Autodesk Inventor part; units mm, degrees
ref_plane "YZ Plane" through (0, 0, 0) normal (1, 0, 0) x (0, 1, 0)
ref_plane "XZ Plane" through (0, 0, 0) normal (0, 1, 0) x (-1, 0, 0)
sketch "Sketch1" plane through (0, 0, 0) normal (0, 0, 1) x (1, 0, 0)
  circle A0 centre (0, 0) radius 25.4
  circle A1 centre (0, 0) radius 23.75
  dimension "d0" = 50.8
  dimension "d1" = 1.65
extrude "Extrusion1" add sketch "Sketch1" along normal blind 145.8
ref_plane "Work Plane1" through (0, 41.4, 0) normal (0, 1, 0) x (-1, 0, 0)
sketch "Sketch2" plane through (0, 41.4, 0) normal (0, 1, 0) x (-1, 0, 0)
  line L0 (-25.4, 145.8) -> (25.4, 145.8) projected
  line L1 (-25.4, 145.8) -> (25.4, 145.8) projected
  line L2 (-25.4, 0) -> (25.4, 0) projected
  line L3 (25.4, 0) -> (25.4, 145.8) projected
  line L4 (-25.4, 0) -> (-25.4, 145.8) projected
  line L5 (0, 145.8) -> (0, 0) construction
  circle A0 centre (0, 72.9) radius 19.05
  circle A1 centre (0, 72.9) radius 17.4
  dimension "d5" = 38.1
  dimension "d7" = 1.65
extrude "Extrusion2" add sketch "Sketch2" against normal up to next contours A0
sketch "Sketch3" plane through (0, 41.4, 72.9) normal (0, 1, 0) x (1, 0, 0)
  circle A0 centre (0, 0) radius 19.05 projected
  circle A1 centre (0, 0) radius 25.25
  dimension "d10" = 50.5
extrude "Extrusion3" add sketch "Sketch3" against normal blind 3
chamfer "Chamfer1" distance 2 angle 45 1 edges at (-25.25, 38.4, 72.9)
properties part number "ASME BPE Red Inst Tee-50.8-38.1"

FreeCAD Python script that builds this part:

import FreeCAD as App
import Part
import Sketcher


def edges_at(feature, points):
    """Names of the edges that pass closest to the given points."""
    edges = feature.Shape.Edges
    near = lambda p: min(range(len(edges)), key=lambda i: edges[i].distToShape(Part.Vertex(*p))[0])
    return sorted({f"Edge{near(p) + 1}" for p in points})

doc = App.newDocument("Part")
body = doc.addObject("PartDesign::Body", "Body")

# Sketch on XY plane
sketch1 = doc.addObject("Sketcher::SketchObject", "Sketch")
body.addObject(sketch1)
sketch1.AttachmentSupport = (doc.XY_Plane, [""])
sketch1.MapMode = "FlatFace"
sketch1.addGeometry(Part.Circle(App.Vector(0, 0, 0), App.Vector(0, 0, 1), 25), False)
sketch1.addGeometry(Part.Circle(App.Vector(0, 0, 0), App.Vector(0, 0, 1), 24), False)
sketch1.addConstraint(Sketcher.Constraint("Coincident", 0, 3, -1, 1))
sketch1.addConstraint(Sketcher.Constraint("Coincident", 1, 3, -1, 1))
sketch1.addConstraint(Sketcher.Constraint("Diameter", 0, 50.8))
sketch1.addConstraint(Sketcher.Constraint("Diameter", 1, 47.5))
pad1 = doc.addObject("PartDesign::Pad", "Pad")
body.addObject(pad1)
pad1.Profile = sketch1
pad1.Length = 145.8

# Sketch on XZ plane
sketch2 = doc.addObject("Sketcher::SketchObject", "Sketch001")
body.addObject(sketch2)
sketch2.AttachmentSupport = (doc.XZ_Plane, [""])
sketch2.MapMode = "FlatFace"
sketch2.AttachmentOffset = App.Placement(App.Vector(0, 0, -41.4), App.Rotation())
sketch2.addGeometry(Part.Circle(App.Vector(0, 73, 0), App.Vector(0, 0, 1), 19), False)
sketch2.addGeometry(Part.Circle(App.Vector(0, 73, 0), App.Vector(0, 0, 1), 17), False)
sketch2.addConstraint(Sketcher.Constraint("Coincident", 1, 3, 0, 3))
sketch2.addConstraint(Sketcher.Constraint("PointOnObject", 0, 3, -2))
sketch2.addConstraint(Sketcher.Constraint("Diameter", 0, 38.1))
sketch2.addConstraint(Sketcher.Constraint("Diameter", 1, 34.8))
sketch2.addConstraint(Sketcher.Constraint("DistanceY", -1, 1, 0, 3, 72.9))
pad2 = doc.addObject("PartDesign::Pad", "Pad001")
body.addObject(pad2)
pad2.Profile = sketch2
pad2.Type = "UpToFirst"

# Sketch on XZ plane
sketch3 = doc.addObject("Sketcher::SketchObject", "Sketch002")
body.addObject(sketch3)
sketch3.AttachmentSupport = (doc.XZ_Plane, [""])
sketch3.MapMode = "FlatFace"
sketch3.AttachmentOffset = App.Placement(App.Vector(0, 0, -41.4), App.Rotation())
sketch3.addGeometry(Part.Circle(App.Vector(0, 73, 0), App.Vector(0, 0, 1), 25), False)
sketch3.addGeometry(Part.Circle(App.Vector(0, 73, 0), App.Vector(0, 0, 1), 19), False)
sketch3.addConstraint(Sketcher.Constraint("Coincident", 1, 3, 0, 3))
sketch3.addConstraint(Sketcher.Constraint("PointOnObject", 0, 3, -2))
sketch3.addConstraint(Sketcher.Constraint("Diameter", 0, 50.5))
sketch3.addConstraint(Sketcher.Constraint("Diameter", 1, 38.1))
sketch3.addConstraint(Sketcher.Constraint("DistanceY", -1, 1, 0, 3, 72.9))
pad3 = doc.addObject("PartDesign::Pad", "Pad002")
body.addObject(pad3)
pad3.Profile = sketch3
pad3.Length = 3
doc.recompute()

chamfer = doc.addObject("PartDesign::Chamfer", "Chamfer")
body.addObject(chamfer)
chamfer.Base = (pad3, edges_at(pad3, [(-25.25, 38.4, 72.9)]))
chamfer.Size = 2

doc.recompute()
